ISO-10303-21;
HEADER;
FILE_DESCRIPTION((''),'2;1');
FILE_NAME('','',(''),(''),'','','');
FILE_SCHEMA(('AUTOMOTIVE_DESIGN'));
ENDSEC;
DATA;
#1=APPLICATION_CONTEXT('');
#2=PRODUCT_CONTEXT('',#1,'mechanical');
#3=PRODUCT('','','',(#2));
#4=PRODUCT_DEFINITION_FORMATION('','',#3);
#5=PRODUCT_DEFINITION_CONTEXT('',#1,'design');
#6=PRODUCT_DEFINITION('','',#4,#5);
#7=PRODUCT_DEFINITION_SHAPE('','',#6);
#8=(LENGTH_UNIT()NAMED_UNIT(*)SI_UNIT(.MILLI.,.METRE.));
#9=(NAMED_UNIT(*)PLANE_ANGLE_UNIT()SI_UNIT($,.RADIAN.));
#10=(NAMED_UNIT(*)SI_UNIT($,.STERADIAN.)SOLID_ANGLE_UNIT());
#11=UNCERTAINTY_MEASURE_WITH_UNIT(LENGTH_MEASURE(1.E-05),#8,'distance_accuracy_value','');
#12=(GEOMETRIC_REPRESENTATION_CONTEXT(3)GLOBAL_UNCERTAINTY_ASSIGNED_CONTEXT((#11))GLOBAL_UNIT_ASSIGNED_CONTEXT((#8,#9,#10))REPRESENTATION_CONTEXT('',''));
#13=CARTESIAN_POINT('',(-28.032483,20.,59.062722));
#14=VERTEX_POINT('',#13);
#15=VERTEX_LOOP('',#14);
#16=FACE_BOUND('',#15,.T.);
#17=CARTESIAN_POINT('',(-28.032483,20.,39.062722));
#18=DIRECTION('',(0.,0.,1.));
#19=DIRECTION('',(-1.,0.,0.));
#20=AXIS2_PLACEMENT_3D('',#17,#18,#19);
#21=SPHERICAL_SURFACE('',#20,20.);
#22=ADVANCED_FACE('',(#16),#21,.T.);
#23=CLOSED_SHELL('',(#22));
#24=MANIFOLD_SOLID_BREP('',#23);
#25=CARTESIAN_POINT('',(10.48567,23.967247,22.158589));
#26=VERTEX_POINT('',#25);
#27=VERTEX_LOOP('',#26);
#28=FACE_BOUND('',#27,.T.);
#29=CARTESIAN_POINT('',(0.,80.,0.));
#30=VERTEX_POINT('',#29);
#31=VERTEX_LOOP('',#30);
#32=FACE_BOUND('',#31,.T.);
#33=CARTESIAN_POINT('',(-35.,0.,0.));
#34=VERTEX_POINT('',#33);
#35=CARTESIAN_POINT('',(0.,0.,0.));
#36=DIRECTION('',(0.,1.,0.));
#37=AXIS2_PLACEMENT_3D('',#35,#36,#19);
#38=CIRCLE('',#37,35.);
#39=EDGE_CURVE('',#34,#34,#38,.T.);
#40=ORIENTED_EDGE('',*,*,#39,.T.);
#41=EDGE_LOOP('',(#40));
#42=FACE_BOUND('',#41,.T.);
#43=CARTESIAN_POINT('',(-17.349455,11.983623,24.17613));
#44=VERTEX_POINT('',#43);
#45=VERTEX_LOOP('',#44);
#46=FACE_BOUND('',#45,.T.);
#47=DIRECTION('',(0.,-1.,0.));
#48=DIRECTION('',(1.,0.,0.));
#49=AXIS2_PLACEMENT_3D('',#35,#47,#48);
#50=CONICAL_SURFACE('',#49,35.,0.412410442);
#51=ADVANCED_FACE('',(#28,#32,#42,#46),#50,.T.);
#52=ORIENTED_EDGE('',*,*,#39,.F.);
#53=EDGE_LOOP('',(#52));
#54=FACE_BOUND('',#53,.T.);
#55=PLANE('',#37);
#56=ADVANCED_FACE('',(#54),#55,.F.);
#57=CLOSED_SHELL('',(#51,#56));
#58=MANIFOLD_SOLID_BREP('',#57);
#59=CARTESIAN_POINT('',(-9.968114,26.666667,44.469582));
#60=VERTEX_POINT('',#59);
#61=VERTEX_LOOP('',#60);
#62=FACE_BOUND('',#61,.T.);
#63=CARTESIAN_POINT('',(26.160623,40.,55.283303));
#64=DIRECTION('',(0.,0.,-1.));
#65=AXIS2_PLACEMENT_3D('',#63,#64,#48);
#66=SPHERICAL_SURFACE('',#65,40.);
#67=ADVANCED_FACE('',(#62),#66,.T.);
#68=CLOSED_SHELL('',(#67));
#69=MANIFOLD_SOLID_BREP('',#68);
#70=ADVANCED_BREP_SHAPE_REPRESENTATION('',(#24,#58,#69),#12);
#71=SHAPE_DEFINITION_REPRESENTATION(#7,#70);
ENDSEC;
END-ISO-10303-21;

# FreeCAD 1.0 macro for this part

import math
import FreeCAD as App
import Part
import Sketcher

V = App.Vector
Q = App.Units.Quantity


def add_polygon(sketch, points):
    """Adds a closed chain of lines whose ends are joined by coincident constraints."""
    first, n = sketch.GeometryCount, len(points)
    for a, b in zip(points, points[1:] + points[:1]):
        sketch.addGeometry(Part.LineSegment(App.Vector(*a, 0), App.Vector(*b, 0)), False)
    for i in range(n):
        sketch.addConstraint(Sketcher.Constraint("Coincident", first + i, 2, first + (i + 1) % n, 1))

doc = App.newDocument("Part")
body = doc.addObject("PartDesign::Body", "Body")

# Sketch on XY plane
sketch1 = doc.addObject("Sketcher::SketchObject", "Sketch")
body.addObject(sketch1)
sketch1.AttachmentSupport = (doc.XY_Plane, [""])
sketch1.MapMode = "FlatFace"
add_polygon(sketch1, [(0, 0), (35, 0), (0, 80)])  # lines 0-2
sketch1.addConstraint([
    Sketcher.Constraint("Horizontal", 0),
    Sketcher.Constraint("Vertical", 2),
    Sketcher.Constraint("Coincident", 2, 2, -1, 1),
    Sketcher.Constraint("DistanceX", 0, 1, 0, 2, Q("35 mm")),
    Sketcher.Constraint("DistanceY", 2, 2, 2, 1, Q("80 mm")),
])
revolution = doc.addObject("PartDesign::Revolution", "Revolution")
body.addObject(revolution)
revolution.Profile = sketch1
revolution.ReferenceAxis = (sketch1, ["V_Axis"])
revolution.Angle = 360
body2 = doc.addObject("PartDesign::Body", "Body001")

# Sketch on XZ plane
sketch2 = doc.addObject("Sketcher::SketchObject", "Sketch001")
body2.addObject(sketch2)
sketch2.AttachmentSupport = (doc.getObject("XZ_Plane001"), [""])
sketch2.MapMode = "FlatFace"
sketch2.AttachmentOffset = App.Placement(V(0, 0, -40), App.Rotation())
sketch2.addGeometry([
    Part.LineSegment(V(26, 15, 0), V(26, 95, 0)),
    Part.ArcOfCircle(Part.Circle(V(26, 55, 0), V(0, 0, 1), 40), math.radians(-90), math.radians(90)),
], False)
sketch2.addGeometry(Part.LineSegment(V(26, 15, 0), V(26, 95, 0)), True)  # axis
sketch2.addConstraint([
    Sketcher.Constraint("Coincident", 0, 1, 1, 1),
    Sketcher.Constraint("Coincident", 1, 2, 0, 2),
    Sketcher.Constraint("Vertical", 0),
    Sketcher.Constraint("Vertical", 2),
    Sketcher.Constraint("Coincident", 2, 1, 0, 1),
    Sketcher.Constraint("Vertical", 1, 3, 0, 1),
    Sketcher.Constraint("Equal", 0, 2),
    Sketcher.Constraint("Radius", 1, Q("40 mm")),
    Sketcher.Constraint("DistanceX", -1, 1, 1, 3, Q("26.160623 mm")),
    Sketcher.Constraint("DistanceY", -1, 1, 1, 3, Q("55.283303 mm")),
])
revolution2 = doc.addObject("PartDesign::Revolution", "Revolution001")
body2.addObject(revolution2)
revolution2.Profile = sketch2
revolution2.ReferenceAxis = (sketch2, ["Axis0"])
revolution2.Angle = 360
body3 = doc.addObject("PartDesign::Body", "Body002")

# Sketch on XZ plane
sketch3 = doc.addObject("Sketcher::SketchObject", "Sketch002")
body3.addObject(sketch3)
sketch3.AttachmentSupport = (doc.getObject("XZ_Plane002"), [""])
sketch3.MapMode = "FlatFace"
sketch3.AttachmentOffset = App.Placement(V(0, 0, -20), App.Rotation())
sketch3.addGeometry([
    Part.LineSegment(V(-28, 59, 0), V(-28, 19, 0)),
    Part.ArcOfCircle(Part.Circle(V(-28, 39, 0), V(0, 0, 1), 20), math.radians(90), math.radians(270)),
], False)
sketch3.addGeometry(Part.LineSegment(V(-28, 59, 0), V(-28, 19, 0)), True)  # axis
sketch3.addConstraint([
    Sketcher.Constraint("Coincident", 0, 1, 1, 1),
    Sketcher.Constraint("Coincident", 1, 2, 0, 2),
    Sketcher.Constraint("Vertical", 0),
    Sketcher.Constraint("Vertical", 2),
    Sketcher.Constraint("Coincident", 2, 1, 0, 1),
    Sketcher.Constraint("Vertical", 1, 3, 0, 1),
    Sketcher.Constraint("Equal", 0, 2),
    Sketcher.Constraint("Radius", 1, Q("20 mm")),
    Sketcher.Constraint("DistanceY", -1, 1, 1, 3, Q("39.062722 mm")),
    Sketcher.Constraint("DistanceX", 1, 3, -1, 1, Q("28.032483 mm")),
])
revolution3 = doc.addObject("PartDesign::Revolution", "Revolution002")
body3.addObject(revolution3)
revolution3.Profile = sketch3
revolution3.ReferenceAxis = (sketch3, ["Axis0"])
revolution3.Angle = 360

doc.recompute()
